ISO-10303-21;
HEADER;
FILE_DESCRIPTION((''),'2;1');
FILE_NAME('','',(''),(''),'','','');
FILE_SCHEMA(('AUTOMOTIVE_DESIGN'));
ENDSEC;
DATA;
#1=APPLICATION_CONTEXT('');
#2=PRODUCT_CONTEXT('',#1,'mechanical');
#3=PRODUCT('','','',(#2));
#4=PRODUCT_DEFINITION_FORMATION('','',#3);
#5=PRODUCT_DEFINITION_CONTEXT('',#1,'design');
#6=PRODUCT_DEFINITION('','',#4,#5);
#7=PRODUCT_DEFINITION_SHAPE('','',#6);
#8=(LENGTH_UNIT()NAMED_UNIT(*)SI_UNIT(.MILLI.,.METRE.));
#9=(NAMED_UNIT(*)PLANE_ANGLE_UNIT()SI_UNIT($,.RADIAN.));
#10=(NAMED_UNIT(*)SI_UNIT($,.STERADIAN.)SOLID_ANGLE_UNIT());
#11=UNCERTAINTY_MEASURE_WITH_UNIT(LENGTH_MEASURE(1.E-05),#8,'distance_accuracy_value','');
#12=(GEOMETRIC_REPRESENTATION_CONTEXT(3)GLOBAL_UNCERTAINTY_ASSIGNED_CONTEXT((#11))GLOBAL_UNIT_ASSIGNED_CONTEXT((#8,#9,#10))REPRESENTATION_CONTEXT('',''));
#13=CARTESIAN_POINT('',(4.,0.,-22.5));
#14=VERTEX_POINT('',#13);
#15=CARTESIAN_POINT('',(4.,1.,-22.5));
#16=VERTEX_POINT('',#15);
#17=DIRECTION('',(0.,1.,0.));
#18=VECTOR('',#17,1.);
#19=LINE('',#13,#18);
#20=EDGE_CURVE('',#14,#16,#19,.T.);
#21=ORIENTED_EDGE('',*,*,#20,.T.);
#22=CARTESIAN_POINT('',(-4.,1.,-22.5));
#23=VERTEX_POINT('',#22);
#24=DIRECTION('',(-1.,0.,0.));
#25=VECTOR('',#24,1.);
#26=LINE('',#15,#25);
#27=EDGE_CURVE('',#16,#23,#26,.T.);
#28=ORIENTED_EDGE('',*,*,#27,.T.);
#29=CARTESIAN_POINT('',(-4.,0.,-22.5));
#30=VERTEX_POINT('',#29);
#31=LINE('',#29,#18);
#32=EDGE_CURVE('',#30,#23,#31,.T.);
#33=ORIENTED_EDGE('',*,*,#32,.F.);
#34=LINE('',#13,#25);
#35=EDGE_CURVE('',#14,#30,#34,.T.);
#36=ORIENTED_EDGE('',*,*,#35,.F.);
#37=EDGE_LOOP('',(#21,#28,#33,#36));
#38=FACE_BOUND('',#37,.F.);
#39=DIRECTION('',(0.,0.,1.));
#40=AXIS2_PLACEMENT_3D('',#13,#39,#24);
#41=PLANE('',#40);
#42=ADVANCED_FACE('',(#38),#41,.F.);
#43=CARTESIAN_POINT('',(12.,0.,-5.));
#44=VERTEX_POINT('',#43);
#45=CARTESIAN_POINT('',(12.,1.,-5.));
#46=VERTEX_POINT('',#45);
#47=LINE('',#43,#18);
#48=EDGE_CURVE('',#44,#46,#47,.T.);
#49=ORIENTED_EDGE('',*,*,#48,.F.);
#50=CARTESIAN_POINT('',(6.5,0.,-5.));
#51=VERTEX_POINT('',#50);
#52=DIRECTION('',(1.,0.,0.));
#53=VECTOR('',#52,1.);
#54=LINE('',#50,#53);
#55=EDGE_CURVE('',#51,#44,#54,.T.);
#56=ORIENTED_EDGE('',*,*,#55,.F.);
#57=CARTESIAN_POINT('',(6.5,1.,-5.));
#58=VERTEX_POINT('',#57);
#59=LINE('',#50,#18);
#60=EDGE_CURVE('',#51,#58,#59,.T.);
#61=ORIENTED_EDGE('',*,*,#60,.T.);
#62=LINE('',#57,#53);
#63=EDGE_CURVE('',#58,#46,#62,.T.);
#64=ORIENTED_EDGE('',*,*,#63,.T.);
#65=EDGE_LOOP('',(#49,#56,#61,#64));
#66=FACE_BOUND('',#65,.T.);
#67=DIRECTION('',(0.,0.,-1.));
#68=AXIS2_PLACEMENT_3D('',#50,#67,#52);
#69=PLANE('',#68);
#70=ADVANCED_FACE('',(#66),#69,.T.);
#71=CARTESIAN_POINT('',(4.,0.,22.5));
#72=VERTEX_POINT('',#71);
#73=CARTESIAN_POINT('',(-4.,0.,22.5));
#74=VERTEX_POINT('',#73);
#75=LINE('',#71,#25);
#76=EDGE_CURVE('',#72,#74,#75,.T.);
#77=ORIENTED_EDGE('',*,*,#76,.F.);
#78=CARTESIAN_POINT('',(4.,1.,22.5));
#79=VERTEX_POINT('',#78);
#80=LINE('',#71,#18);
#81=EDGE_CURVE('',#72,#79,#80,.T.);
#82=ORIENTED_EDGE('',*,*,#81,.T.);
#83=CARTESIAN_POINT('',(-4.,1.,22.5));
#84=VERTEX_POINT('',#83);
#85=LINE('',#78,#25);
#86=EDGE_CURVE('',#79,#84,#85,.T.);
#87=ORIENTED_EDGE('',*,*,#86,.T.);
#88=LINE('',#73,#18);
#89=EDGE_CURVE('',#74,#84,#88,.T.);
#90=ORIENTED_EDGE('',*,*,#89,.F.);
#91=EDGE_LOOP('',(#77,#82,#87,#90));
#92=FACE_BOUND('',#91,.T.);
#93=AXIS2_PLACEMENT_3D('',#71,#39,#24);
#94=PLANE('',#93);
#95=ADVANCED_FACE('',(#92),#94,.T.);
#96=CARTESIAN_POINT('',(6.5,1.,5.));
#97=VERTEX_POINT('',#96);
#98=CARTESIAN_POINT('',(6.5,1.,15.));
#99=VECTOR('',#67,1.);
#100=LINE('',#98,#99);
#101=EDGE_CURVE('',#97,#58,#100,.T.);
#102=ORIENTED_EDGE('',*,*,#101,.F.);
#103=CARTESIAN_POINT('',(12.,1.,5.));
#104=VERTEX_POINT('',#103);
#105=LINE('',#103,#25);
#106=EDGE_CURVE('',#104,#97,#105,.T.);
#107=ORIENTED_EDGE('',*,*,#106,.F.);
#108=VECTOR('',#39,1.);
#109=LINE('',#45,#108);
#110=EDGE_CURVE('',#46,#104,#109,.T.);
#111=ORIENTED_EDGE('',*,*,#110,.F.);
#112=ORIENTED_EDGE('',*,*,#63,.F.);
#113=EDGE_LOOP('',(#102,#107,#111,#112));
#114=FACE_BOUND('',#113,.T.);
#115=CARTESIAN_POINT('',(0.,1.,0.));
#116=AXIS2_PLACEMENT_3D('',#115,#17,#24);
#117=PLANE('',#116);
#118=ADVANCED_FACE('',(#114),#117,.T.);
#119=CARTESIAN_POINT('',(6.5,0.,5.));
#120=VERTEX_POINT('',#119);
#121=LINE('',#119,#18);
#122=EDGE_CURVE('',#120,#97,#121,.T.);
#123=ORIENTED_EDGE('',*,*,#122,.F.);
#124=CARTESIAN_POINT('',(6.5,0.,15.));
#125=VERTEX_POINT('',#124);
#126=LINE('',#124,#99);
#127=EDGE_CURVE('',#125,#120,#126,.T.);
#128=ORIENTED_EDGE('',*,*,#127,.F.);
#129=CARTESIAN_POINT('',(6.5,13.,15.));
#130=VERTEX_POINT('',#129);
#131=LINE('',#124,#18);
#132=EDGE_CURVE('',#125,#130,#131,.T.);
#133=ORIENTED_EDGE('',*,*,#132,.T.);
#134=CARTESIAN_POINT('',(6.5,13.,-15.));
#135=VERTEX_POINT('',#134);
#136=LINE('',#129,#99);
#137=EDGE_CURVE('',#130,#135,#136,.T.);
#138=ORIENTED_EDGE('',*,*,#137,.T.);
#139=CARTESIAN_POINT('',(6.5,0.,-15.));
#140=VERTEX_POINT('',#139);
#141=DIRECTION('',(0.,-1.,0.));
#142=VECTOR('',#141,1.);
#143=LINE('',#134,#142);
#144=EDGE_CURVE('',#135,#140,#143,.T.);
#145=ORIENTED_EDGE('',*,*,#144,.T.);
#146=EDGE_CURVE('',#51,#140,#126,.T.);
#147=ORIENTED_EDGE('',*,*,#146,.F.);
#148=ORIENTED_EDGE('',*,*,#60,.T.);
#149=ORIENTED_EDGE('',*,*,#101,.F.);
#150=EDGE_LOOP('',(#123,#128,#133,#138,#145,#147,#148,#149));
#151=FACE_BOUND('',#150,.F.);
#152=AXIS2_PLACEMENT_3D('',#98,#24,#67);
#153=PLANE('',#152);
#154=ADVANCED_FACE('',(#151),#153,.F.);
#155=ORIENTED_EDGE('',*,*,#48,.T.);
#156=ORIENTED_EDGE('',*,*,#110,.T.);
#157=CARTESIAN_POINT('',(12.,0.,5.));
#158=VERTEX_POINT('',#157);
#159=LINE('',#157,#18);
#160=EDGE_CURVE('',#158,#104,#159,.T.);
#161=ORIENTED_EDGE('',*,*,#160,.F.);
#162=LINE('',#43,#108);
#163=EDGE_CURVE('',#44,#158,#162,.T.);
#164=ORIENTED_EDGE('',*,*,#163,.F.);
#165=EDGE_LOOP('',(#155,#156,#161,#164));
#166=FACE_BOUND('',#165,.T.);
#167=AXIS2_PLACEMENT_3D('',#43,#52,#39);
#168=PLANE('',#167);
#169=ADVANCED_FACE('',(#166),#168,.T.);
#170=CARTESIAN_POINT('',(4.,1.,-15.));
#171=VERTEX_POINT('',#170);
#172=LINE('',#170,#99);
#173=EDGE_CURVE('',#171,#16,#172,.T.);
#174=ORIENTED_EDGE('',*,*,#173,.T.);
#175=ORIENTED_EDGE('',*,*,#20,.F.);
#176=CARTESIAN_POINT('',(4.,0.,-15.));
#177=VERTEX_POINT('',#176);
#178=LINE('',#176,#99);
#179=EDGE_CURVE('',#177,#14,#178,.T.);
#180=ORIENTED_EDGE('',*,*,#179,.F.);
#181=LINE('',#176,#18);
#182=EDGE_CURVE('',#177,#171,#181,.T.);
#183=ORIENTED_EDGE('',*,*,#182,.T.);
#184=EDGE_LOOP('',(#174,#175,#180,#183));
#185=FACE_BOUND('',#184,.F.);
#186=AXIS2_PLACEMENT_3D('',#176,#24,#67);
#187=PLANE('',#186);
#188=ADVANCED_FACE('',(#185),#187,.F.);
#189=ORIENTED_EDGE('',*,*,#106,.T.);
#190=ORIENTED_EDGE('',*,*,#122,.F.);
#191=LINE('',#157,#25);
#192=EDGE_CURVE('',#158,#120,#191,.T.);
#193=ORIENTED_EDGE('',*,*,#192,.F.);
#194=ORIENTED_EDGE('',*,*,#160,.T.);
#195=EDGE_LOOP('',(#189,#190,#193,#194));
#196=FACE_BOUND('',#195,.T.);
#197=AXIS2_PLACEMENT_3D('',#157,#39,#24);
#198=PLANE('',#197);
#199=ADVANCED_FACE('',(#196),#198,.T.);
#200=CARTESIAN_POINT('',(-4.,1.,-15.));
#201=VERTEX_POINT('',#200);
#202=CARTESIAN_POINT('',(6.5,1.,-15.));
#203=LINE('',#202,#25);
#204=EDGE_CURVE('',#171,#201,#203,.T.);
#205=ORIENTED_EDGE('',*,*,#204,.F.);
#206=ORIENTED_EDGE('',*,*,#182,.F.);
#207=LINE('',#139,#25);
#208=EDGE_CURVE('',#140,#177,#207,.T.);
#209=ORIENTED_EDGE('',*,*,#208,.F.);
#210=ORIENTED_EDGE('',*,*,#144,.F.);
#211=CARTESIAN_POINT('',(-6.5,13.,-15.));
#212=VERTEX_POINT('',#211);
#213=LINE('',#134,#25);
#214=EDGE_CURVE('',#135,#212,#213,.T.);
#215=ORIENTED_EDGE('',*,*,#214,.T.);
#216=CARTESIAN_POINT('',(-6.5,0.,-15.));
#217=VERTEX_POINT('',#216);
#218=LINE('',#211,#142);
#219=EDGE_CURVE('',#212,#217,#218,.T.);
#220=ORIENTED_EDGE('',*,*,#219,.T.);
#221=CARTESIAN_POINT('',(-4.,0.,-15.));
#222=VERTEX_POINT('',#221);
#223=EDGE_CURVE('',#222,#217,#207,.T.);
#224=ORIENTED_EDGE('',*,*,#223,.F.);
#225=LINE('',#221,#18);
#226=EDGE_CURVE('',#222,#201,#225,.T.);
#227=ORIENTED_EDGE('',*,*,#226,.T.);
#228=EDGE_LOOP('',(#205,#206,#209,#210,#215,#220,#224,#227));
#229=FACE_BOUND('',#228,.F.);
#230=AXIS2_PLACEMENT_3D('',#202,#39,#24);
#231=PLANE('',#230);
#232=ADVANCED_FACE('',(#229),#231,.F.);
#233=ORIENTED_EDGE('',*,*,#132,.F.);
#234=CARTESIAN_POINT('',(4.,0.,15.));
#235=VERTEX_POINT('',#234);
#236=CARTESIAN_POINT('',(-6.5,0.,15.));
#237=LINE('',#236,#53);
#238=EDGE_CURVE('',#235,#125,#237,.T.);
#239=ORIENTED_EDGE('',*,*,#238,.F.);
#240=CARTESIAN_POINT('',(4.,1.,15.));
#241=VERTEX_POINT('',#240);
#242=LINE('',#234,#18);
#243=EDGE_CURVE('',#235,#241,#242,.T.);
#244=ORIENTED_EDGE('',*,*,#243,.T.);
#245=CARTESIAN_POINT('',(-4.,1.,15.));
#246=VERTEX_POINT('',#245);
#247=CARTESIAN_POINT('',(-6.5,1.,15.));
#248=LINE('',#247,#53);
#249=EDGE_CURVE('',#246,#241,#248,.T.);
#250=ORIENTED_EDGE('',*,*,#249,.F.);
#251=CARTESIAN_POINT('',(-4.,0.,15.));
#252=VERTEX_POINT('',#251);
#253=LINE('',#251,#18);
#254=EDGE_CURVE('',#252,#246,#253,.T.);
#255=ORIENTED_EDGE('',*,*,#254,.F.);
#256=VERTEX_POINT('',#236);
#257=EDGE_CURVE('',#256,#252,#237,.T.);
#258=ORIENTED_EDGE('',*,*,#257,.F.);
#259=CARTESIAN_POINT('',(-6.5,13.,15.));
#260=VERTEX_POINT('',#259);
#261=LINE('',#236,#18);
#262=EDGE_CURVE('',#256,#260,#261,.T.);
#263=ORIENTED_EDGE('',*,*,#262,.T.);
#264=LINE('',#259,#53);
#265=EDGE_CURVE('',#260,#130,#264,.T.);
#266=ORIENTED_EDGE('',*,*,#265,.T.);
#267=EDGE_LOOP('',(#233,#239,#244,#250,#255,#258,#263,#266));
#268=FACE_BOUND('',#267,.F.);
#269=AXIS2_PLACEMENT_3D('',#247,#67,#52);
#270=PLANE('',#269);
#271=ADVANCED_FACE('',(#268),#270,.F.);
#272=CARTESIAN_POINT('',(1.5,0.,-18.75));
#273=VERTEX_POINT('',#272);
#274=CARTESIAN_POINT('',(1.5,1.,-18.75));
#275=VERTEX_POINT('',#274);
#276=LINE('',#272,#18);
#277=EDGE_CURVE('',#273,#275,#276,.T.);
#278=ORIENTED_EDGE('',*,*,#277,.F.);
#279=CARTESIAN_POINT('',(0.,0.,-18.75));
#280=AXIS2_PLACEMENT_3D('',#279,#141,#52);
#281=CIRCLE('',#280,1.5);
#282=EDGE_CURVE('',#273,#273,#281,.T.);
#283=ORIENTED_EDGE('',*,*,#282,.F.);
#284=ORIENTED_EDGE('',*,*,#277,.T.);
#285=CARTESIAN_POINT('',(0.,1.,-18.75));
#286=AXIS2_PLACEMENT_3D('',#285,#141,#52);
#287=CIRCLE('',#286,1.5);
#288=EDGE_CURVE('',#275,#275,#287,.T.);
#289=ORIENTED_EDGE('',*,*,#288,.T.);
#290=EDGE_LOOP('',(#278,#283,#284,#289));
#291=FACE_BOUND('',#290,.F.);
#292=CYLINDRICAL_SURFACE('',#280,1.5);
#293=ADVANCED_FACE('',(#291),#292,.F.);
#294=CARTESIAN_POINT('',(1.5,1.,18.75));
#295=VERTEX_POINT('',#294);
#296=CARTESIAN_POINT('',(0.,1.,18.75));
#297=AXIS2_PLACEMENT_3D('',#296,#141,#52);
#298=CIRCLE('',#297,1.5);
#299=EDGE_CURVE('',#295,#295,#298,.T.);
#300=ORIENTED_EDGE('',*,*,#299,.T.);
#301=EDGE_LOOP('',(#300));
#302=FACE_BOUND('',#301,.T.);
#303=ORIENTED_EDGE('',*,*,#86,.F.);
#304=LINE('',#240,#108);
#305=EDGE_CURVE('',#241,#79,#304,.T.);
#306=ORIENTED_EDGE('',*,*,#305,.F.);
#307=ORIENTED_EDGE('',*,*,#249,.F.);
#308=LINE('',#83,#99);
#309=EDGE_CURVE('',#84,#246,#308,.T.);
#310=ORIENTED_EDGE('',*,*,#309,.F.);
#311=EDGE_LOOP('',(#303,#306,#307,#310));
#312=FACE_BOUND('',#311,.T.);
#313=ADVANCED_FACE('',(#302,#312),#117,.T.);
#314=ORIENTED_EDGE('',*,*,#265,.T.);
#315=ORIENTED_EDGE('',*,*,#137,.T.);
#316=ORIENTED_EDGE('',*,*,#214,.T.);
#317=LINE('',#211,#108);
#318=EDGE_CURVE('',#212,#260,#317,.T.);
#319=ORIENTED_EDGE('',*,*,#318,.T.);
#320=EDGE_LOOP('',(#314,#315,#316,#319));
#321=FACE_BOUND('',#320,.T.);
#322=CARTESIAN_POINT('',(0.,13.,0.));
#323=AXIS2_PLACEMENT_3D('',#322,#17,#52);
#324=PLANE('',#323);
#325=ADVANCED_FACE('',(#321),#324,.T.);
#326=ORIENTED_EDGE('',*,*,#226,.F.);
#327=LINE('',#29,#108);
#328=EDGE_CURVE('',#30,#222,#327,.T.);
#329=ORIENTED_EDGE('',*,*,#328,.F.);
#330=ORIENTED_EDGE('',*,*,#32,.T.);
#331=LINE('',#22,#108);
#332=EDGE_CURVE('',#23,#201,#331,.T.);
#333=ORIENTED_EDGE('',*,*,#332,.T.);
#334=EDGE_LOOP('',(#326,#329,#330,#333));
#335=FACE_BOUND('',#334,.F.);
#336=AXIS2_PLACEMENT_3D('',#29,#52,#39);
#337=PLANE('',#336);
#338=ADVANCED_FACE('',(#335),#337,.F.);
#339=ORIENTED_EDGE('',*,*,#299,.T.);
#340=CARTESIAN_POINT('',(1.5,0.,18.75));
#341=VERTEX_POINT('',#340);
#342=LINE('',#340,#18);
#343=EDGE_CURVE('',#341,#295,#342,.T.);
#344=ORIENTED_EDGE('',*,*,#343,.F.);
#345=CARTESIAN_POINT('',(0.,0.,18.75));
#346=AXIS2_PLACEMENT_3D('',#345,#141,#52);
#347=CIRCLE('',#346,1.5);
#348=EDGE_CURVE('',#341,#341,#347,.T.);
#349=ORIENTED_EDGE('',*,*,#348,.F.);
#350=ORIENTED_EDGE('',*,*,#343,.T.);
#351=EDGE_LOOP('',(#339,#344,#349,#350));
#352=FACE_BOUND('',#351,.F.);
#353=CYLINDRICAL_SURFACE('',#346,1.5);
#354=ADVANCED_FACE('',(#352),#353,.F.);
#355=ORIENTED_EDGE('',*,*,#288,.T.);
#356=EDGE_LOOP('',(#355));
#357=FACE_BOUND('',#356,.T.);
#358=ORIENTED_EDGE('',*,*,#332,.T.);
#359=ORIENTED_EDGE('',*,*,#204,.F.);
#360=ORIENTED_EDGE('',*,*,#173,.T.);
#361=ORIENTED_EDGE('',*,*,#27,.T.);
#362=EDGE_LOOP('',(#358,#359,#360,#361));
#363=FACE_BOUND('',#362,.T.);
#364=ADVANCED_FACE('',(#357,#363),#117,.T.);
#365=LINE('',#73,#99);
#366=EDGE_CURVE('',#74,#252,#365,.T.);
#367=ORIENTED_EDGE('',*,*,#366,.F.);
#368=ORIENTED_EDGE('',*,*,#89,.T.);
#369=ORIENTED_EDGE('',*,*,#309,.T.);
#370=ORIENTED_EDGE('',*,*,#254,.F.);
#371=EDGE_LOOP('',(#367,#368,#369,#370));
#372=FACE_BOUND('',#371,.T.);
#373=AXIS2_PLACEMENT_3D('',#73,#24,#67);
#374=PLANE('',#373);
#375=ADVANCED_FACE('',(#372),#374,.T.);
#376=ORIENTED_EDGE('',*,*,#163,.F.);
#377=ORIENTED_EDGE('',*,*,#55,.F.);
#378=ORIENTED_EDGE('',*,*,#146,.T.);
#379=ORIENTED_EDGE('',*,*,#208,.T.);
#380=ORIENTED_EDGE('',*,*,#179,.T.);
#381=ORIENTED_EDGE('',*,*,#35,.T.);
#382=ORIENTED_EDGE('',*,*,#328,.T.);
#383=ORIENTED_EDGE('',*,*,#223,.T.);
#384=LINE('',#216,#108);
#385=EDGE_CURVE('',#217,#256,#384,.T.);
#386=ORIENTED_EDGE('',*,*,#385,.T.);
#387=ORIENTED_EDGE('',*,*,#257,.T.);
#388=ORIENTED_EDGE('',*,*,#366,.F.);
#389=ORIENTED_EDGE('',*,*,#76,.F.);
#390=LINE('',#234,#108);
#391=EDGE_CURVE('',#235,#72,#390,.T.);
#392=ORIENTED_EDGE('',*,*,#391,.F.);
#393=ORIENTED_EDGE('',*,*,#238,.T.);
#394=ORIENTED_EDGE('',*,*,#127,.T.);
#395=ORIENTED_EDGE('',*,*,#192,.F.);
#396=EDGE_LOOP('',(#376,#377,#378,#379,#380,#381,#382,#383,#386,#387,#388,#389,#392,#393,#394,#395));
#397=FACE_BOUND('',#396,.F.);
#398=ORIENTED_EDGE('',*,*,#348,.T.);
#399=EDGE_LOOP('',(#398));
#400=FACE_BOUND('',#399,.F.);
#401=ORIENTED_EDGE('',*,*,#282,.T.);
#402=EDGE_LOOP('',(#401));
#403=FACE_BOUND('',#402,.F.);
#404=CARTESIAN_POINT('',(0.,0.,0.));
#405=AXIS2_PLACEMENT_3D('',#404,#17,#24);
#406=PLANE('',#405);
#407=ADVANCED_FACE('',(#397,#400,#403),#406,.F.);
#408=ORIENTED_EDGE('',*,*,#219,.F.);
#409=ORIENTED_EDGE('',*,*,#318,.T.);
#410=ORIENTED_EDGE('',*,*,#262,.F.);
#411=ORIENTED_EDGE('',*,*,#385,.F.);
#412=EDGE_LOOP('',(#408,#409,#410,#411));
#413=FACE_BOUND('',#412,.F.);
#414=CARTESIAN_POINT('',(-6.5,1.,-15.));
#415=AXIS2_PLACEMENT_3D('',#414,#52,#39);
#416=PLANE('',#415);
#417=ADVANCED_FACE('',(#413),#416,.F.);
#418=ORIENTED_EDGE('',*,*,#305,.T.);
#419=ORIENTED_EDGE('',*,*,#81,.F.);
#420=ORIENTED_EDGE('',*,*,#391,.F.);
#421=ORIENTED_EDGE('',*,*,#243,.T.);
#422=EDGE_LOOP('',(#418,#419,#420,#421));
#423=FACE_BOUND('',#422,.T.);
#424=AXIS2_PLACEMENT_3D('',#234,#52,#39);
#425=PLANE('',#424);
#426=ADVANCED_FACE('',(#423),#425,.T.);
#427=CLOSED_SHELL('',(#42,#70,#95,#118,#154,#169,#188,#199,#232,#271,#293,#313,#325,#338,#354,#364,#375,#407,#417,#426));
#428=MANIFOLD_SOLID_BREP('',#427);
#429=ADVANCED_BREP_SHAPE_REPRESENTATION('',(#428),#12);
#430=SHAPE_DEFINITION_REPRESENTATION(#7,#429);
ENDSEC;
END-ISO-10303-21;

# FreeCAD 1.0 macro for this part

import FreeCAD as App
import Part
import Sketcher

V = App.Vector
Q = App.Units.Quantity


def add_polygon(sketch, points):
    """Adds a closed chain of lines whose ends are joined by coincident constraints."""
    first, n = sketch.GeometryCount, len(points)
    for a, b in zip(points, points[1:] + points[:1]):
        sketch.addGeometry(Part.LineSegment(App.Vector(*a, 0), App.Vector(*b, 0)), False)
    for i in range(n):
        sketch.addConstraint(Sketcher.Constraint("Coincident", first + i, 2, first + (i + 1) % n, 1))

doc = App.newDocument("Part")
body = doc.addObject("PartDesign::Body", "Body")

sketch1 = doc.addObject("Sketcher::SketchObject", "Sketch")
body.addObject(sketch1)
sketch1.AttachmentSupport = (doc.XZ_Plane, [""])
sketch1.MapMode = "FlatFace"
add_polygon(sketch1, [(-6.5, -15), (-6.5, 15), (-4, 15), (-4, 22.5), (4, 22.5), (4, 15), (6.5, 15), (6.5, 5), (12, 5), (12, -5), (6.5, -5), (6.5, -15), (4, -15), (4, -22.5), (-4, -22.5), (-4, -15)])
sketch1.addConstraint([
    Sketcher.Constraint("Vertical", 0),
    Sketcher.Constraint("Horizontal", 1),
    Sketcher.Constraint("Vertical", 2),
    Sketcher.Constraint("Horizontal", 3),
    Sketcher.Constraint("Vertical", 4),
    Sketcher.Constraint("Horizontal", 5),
    Sketcher.Constraint("Vertical", 6),
    Sketcher.Constraint("Horizontal", 7),
    Sketcher.Constraint("Vertical", 8),
    Sketcher.Constraint("Horizontal", 9),
    Sketcher.Constraint("Vertical", 10),
    Sketcher.Constraint("Horizontal", 11),
    Sketcher.Constraint("Vertical", 12),
    Sketcher.Constraint("Horizontal", 13),
    Sketcher.Constraint("Vertical", 14),
    Sketcher.Constraint("Horizontal", 15),
    Sketcher.Constraint("Symmetric", 0, 2, 10, 2, -1, 1),
    Sketcher.Constraint("Symmetric", 2, 2, 12, 2, -1, 1),
    Sketcher.Constraint("Symmetric", 4, 2, 14, 2, -1, 1),
    Sketcher.Constraint("Symmetric", 1, 2, 4, 2, -2),
    Sketcher.Constraint("Symmetric", 6, 2, 9, 2, -1),
    Sketcher.Constraint("Equal", 6, 8),
    Sketcher.Constraint("DistanceX", 3, 1, 3, 2, Q("8 mm")),
    Sketcher.Constraint("DistanceY", 0, 1, 0, 2, Q("30 mm")),
    Sketcher.Constraint("DistanceX", 7, 1, 7, 2, Q("5.5 mm")),
    Sketcher.Constraint("DistanceX", 0, 2, 5, 2, Q("13 mm")),
    Sketcher.Constraint("DistanceY", -1, 1, 2, 2, Q("22.5 mm")),
])
pad1 = doc.addObject("PartDesign::Pad", "Pad")
body.addObject(pad1)
pad1.Profile = sketch1
pad1.Length = 1
pad1.Reversed = True

sketch2 = doc.addObject("Sketcher::SketchObject", "Sketch001")
body.addObject(sketch2)
sketch2.AttachmentSupport = (doc.XZ_Plane, [""])
sketch2.MapMode = "FlatFace"
sketch2.AttachmentOffset = App.Placement(V(0, 0, -1), App.Rotation())
add_polygon(sketch2, [(-6, -15), (-6, 15), (6, 15), (6, -15)])
sketch2.addConstraint([
    Sketcher.Constraint("Vertical", 0),
    Sketcher.Constraint("Horizontal", 1),
    Sketcher.Constraint("Vertical", 2),
    Sketcher.Constraint("Horizontal", 3),
    Sketcher.Constraint("Symmetric", 0, 2, 2, 2, -1, 1),
    Sketcher.Constraint("DistanceX", 1, 1, 1, 2, Q("13 mm")),
    Sketcher.Constraint("DistanceY", 0, 1, 0, 2, Q("30 mm")),
])
pad2 = doc.addObject("PartDesign::Pad", "Pad001")
body.addObject(pad2)
pad2.Profile = sketch2
pad2.Length = 12
pad2.Reversed = True

sketch3 = doc.addObject("Sketcher::SketchObject", "Sketch002")
body.addObject(sketch3)
sketch3.AttachmentSupport = (doc.XZ_Plane, [""])
sketch3.MapMode = "FlatFace"
sketch3.addGeometry([
    Part.Circle(V(0, -18.8, 0), V(0, 0, 1), 1.5),
    Part.Circle(V(0, 18.8, 0), V(0, 0, 1), 1.5),
], False)
sketch3.addConstraint([
    Sketcher.Constraint("Equal", 0, 1),
    Sketcher.Constraint("Symmetric", 0, 3, 1, 3, -1, 1),
    Sketcher.Constraint("PointOnObject", 0, 3, -2),
    Sketcher.Constraint("Diameter", 0, Q("3 mm")),
    Sketcher.Constraint("DistanceY", 0, 3, 1, 3, Q("37.5 mm")),
])
pocket1 = doc.addObject("PartDesign::Pocket", "Pocket")
body.addObject(pocket1)
pocket1.Profile = sketch3
pocket1.Type = "ThroughAll"

doc.recompute()
